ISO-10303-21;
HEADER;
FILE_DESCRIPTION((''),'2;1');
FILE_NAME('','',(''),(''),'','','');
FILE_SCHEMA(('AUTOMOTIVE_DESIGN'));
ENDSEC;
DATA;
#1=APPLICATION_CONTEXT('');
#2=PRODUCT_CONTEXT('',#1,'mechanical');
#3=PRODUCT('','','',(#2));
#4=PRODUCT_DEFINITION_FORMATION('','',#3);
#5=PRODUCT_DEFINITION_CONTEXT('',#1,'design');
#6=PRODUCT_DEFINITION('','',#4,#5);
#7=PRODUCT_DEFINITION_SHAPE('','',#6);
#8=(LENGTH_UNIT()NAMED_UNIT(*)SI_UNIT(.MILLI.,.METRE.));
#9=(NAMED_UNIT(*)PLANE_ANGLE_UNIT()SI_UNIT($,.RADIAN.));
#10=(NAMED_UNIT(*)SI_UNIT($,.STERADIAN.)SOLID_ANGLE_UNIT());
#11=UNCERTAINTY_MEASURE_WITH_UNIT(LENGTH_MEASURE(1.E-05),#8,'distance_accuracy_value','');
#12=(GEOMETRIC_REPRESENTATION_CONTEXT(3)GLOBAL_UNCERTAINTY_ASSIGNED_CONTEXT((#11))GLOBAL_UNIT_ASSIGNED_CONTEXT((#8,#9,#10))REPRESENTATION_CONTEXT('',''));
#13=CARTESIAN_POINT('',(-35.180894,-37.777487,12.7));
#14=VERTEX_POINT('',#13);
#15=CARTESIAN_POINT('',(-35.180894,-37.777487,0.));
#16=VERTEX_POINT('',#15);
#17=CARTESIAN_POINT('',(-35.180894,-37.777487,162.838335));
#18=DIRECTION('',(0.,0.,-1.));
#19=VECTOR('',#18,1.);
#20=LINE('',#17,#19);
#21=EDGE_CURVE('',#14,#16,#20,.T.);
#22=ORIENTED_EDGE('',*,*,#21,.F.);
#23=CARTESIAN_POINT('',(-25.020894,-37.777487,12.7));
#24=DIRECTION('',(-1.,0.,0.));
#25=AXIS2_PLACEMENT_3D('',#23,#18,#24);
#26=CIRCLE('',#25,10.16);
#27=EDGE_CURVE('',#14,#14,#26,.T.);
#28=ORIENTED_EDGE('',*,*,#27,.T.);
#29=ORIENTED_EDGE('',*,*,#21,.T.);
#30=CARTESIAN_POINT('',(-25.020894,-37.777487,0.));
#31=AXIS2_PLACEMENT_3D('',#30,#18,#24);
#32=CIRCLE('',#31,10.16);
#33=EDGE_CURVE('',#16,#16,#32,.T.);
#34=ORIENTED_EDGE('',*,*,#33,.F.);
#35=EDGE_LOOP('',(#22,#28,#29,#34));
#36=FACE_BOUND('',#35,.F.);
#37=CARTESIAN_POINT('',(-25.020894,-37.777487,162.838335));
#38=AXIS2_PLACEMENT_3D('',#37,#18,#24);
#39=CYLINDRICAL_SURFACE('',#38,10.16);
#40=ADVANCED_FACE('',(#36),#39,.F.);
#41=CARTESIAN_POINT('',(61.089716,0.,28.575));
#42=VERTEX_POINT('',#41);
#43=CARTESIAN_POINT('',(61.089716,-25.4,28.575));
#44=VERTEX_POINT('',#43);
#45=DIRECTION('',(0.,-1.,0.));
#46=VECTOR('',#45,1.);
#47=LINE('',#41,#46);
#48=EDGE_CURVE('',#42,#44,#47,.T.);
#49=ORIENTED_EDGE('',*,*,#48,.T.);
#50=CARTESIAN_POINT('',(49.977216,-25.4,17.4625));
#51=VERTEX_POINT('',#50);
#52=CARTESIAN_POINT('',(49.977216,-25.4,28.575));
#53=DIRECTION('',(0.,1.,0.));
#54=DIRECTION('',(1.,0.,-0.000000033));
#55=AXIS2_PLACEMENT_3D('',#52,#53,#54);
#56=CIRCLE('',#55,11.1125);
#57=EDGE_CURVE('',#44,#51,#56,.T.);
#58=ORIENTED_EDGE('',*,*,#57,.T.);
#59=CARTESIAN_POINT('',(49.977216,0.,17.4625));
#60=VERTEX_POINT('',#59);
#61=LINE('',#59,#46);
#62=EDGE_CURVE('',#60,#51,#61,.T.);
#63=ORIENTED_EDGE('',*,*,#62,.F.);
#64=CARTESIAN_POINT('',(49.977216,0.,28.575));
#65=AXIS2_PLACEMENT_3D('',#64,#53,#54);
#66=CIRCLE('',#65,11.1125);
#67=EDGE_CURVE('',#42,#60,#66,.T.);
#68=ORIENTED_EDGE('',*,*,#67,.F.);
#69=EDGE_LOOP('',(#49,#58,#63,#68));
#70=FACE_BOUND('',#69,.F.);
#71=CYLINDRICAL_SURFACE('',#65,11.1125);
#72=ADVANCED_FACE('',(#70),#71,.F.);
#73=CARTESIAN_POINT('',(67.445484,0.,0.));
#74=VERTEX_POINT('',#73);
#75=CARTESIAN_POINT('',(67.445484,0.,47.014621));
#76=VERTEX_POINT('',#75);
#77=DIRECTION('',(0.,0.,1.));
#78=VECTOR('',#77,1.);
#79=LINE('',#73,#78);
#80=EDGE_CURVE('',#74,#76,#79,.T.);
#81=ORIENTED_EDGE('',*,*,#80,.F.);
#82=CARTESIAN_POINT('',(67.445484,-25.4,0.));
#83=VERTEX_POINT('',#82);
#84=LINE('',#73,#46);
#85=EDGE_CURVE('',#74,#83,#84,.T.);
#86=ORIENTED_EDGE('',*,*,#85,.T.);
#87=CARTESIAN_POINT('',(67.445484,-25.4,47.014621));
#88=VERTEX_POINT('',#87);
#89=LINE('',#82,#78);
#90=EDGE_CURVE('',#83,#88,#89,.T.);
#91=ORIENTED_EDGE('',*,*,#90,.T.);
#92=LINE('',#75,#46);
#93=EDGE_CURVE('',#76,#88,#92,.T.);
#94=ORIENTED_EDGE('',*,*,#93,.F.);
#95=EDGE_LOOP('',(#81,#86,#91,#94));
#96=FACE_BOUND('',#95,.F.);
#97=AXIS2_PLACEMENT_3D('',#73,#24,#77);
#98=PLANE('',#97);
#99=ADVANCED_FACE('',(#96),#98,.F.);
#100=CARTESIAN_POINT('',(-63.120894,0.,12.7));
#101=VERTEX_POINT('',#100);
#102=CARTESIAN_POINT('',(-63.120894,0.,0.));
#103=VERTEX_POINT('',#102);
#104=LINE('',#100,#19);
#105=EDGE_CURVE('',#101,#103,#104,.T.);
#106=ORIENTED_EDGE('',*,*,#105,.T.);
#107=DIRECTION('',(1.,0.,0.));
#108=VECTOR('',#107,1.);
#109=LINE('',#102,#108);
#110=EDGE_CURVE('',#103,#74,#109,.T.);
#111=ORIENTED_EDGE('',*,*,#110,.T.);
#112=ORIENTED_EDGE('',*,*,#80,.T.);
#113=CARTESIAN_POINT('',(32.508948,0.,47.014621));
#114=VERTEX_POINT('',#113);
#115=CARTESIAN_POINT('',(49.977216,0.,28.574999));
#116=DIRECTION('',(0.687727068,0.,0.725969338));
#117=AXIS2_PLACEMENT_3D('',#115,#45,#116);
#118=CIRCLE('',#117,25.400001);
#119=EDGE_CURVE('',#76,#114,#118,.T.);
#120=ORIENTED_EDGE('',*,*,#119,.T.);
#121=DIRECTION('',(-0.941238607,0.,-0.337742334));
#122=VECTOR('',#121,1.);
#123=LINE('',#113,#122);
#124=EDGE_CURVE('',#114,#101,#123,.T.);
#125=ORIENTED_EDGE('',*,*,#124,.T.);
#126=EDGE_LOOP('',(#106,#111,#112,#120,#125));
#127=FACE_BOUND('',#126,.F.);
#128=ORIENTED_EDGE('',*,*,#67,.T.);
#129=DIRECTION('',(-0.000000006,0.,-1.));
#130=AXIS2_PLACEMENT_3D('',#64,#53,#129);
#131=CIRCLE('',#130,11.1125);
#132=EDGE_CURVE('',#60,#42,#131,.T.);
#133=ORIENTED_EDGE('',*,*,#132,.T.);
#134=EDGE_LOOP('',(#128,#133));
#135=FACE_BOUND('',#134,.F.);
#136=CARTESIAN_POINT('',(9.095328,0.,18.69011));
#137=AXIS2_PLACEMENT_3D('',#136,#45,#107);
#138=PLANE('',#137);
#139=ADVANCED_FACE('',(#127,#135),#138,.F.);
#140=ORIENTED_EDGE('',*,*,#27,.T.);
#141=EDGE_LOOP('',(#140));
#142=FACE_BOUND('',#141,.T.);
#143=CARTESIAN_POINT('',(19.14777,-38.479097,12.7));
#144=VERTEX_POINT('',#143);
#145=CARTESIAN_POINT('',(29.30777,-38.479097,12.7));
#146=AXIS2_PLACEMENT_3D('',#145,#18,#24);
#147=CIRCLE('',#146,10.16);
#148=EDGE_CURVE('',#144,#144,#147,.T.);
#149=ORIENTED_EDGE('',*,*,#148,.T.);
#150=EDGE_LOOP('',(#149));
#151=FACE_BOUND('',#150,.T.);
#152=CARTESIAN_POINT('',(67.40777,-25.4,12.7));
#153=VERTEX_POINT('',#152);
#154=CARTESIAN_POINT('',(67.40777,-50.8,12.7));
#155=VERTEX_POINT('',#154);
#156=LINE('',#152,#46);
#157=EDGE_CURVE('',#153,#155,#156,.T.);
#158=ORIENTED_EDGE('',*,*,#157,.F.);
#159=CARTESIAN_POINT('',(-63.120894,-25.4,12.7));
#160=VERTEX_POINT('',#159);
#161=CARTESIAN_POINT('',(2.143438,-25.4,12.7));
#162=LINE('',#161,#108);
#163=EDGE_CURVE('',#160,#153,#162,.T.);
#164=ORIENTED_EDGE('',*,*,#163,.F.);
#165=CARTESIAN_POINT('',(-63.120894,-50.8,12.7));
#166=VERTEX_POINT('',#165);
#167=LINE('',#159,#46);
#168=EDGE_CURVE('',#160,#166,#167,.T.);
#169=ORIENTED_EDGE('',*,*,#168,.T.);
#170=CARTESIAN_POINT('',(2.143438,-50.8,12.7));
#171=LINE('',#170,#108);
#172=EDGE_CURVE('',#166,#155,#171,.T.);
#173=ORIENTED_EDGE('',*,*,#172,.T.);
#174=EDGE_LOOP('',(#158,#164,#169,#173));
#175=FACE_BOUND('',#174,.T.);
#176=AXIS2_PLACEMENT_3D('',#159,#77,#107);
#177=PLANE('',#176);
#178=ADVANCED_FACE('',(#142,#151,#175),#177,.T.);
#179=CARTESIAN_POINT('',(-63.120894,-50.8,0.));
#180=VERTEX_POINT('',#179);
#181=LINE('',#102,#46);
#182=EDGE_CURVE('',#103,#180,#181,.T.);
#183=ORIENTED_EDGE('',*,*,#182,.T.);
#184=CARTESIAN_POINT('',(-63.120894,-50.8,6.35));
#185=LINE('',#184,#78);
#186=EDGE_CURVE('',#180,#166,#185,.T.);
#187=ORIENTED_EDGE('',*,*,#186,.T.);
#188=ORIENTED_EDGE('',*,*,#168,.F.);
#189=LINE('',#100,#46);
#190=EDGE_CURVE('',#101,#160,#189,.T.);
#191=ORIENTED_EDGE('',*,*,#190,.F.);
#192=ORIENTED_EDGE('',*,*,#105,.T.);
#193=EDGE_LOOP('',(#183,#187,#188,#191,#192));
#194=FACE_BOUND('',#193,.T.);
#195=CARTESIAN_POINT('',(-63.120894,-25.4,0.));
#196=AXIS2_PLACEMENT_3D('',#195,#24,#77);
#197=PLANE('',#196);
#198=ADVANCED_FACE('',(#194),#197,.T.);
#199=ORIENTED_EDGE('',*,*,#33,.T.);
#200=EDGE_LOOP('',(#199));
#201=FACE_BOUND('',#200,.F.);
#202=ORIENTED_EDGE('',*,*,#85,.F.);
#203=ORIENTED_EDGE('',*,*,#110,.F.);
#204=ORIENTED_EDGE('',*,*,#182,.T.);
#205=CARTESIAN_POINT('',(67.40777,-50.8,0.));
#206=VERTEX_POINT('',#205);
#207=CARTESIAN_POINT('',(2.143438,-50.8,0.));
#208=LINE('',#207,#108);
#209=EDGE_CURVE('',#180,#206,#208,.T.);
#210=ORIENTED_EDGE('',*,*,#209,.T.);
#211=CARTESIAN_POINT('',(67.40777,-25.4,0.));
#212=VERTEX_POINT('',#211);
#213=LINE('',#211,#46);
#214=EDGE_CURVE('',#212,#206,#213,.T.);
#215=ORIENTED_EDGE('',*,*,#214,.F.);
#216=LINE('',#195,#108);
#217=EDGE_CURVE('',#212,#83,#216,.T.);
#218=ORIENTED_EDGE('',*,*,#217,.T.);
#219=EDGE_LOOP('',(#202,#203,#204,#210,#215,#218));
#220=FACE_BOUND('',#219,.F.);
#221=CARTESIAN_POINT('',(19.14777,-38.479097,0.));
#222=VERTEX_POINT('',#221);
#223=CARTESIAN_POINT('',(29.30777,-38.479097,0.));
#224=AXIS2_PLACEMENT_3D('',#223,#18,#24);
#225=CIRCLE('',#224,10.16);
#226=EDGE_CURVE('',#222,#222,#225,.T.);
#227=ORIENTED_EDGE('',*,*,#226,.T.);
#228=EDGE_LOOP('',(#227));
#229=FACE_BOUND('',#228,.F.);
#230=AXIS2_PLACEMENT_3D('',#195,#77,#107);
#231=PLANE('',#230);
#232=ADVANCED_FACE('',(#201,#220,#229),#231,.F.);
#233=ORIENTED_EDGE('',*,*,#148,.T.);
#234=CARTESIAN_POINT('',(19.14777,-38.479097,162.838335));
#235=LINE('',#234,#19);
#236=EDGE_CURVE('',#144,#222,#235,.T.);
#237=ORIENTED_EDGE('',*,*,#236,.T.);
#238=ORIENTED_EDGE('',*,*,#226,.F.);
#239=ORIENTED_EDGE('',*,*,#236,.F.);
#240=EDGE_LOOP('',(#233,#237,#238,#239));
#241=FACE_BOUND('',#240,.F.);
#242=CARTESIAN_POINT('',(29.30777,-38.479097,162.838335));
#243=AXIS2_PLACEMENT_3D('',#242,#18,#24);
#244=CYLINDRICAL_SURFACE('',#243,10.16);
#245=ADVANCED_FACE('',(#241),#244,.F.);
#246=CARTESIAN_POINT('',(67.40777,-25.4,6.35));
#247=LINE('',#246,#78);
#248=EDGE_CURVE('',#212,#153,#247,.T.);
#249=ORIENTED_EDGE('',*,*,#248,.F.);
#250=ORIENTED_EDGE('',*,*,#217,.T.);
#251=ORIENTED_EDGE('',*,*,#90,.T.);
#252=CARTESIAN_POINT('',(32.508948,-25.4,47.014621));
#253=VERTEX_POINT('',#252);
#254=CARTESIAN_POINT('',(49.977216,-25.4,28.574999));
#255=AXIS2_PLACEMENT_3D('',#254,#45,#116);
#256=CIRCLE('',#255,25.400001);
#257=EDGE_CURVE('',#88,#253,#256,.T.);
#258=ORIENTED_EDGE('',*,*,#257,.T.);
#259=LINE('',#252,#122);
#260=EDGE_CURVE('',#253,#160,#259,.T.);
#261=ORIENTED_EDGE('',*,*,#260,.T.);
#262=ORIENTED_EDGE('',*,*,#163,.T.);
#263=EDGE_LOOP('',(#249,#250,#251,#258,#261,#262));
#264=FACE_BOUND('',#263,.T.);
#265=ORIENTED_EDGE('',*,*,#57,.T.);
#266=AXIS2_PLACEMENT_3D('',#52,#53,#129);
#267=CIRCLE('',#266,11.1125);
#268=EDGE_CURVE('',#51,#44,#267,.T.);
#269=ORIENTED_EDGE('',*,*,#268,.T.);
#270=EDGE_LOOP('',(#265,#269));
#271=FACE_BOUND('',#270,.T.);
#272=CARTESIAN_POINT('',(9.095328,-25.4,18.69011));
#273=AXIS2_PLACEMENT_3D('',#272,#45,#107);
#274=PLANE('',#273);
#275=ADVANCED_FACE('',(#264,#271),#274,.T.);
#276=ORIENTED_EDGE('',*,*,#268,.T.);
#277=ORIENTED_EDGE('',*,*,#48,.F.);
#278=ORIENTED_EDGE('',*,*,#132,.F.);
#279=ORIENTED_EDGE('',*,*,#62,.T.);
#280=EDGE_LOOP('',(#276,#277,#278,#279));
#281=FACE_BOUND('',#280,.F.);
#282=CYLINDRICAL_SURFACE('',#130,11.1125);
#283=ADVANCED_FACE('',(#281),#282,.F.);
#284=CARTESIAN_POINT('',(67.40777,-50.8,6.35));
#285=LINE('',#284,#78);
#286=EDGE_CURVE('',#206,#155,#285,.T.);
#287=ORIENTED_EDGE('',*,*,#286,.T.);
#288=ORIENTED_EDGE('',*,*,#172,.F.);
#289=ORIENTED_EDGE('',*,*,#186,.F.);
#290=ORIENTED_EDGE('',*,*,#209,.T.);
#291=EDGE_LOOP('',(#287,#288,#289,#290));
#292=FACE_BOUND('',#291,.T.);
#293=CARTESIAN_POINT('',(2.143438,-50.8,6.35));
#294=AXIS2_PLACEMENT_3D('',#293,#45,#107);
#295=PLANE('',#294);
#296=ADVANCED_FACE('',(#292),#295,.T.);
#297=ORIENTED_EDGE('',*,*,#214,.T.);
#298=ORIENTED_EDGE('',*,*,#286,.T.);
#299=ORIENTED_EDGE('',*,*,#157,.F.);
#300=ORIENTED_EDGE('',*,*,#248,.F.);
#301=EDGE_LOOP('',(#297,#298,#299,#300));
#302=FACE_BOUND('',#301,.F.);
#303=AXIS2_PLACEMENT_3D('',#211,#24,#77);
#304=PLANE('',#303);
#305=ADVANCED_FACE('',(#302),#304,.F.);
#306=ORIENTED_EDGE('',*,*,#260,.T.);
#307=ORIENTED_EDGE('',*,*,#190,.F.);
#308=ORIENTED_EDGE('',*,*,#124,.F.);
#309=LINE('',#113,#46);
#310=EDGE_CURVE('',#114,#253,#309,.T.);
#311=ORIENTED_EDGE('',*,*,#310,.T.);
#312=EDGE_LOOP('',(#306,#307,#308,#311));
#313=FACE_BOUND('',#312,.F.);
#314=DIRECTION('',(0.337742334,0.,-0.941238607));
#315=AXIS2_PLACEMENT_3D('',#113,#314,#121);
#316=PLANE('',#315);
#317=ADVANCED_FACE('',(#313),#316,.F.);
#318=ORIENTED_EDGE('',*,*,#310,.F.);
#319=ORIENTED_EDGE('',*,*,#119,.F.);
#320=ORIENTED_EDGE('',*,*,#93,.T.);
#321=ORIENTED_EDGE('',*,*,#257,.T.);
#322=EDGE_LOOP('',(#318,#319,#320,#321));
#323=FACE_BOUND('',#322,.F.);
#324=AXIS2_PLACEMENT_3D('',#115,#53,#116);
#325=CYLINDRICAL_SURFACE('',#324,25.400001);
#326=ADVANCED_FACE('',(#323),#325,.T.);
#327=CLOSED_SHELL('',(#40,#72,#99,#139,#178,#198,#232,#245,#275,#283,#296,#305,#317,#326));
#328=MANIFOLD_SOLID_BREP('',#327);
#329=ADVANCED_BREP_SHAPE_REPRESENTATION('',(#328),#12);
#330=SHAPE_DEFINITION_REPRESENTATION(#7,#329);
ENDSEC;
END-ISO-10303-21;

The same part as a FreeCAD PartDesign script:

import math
import FreeCAD as App
import Part
import Sketcher
from FreeCAD import Vector
Q = App.Units.Quantity

doc = App.newDocument("Part")
body = doc.addObject("PartDesign::Body", "Body")

# Sketch on XZ plane
sketch1 = body.newObject("Sketcher::SketchObject", "Sketch")
sketch1.AttachmentSupport = (doc.getObject("XZ_Plane"), [""])
sketch1.MapMode = "FlatFace"
sketch1.addGeometry(Part.LineSegment(Vector(-63, 13, 0), Vector(-63, 0, 0)), False)
sketch1.addGeometry(Part.LineSegment(Vector(-63, 0, 0), Vector(67, 0, 0)), False)
sketch1.addGeometry(Part.LineSegment(Vector(67, 0, 0), Vector(67, 47, 0)), False)
sketch1.addGeometry(Part.ArcOfCircle(Part.Circle(Vector(50, 29, 0), Vector(0, 0, 1), 25), math.radians(47), math.radians(133)), False)
sketch1.addGeometry(Part.LineSegment(Vector(33, 47, 0), Vector(-63, 13, 0)), False)
sketch1.addGeometry(Part.ArcOfCircle(Part.Circle(Vector(50, 29, 0), Vector(0, 0, 1), 11), math.radians(0), math.radians(270)), False)
sketch1.addGeometry(Part.ArcOfCircle(Part.Circle(Vector(50, 29, 0), Vector(0, 0, 1), 11), math.radians(-90), math.radians(0)), False)
sketch1.addConstraint(Sketcher.Constraint("Coincident", 0, 2, 1, 1))
sketch1.addConstraint(Sketcher.Constraint("Coincident", 1, 2, 2, 1))
sketch1.addConstraint(Sketcher.Constraint("Coincident", 2, 2, 3, 1))
sketch1.addConstraint(Sketcher.Constraint("Coincident", 3, 2, 4, 1))
sketch1.addConstraint(Sketcher.Constraint("Coincident", 4, 2, 0, 1))
sketch1.addConstraint(Sketcher.Constraint("Tangent", 5, 1, 6, 2))
sketch1.addConstraint(Sketcher.Constraint("Coincident", 6, 1, 5, 2))
sketch1.addConstraint(Sketcher.Constraint("Vertical", 0))
sketch1.addConstraint(Sketcher.Constraint("Horizontal", 1))
sketch1.addConstraint(Sketcher.Constraint("Vertical", 2))
sketch1.addConstraint(Sketcher.Constraint("Coincident", 5, 3, 3, 3))
sketch1.addConstraint(Sketcher.Constraint("PointOnObject", 0, 2, -1))
sketch1.addConstraint(Sketcher.Constraint("Horizontal", 2, 2, 3, 2))
sketch1.addConstraint(Sketcher.Constraint("Horizontal", 6, 3, 5, 1))
sketch1.addConstraint(Sketcher.Constraint("Vertical", 5, 3, 6, 1))
sketch1.addConstraint(Sketcher.Constraint("Radius", 3, Q("1 in")))
sketch1.addConstraint(Sketcher.Constraint("Distance", 4, Q("4 in")))
sketch1.addConstraint(Sketcher.Constraint("DistanceY", 0, 2, 0, 1, Q("0.5 in")))
sketch1.addConstraint(Sketcher.Constraint("Radius", 5, Q("0.4375 in")))
sketch1.addConstraint(Sketcher.Constraint("DistanceY", -1, 1, 3, 3, Q("1.125 in")))
sketch1.addConstraint(Sketcher.Constraint("DistanceY", 2, 1, 2, 2, 47.014621))
sketch1.addConstraint(Sketcher.Constraint("DistanceX", -1, 1, 3, 3, 49.977216))
pad1 = body.newObject("PartDesign::Pad", "Pad")
pad1.Profile = sketch1
pad1.Length = Q("1 in")

# Sketch on XZ plane
sketch2 = body.newObject("Sketcher::SketchObject", "Sketch001")
sketch2.AttachmentSupport = (doc.getObject("XZ_Plane"), [""])
sketch2.MapMode = "FlatFace"
sketch2.AttachmentOffset = App.Placement(Vector(0, 0, 1 * 25.4), App.Rotation())
sketch2.addGeometry(Part.LineSegment(Vector(-63, 13, 0), Vector(-63, 0, 0)), False)
sketch2.addGeometry(Part.LineSegment(Vector(-63, 0, 0), Vector(67, 0, 0)), False)
sketch2.addGeometry(Part.LineSegment(Vector(67, 0, 0), Vector(67, 13, 0)), False)
sketch2.addGeometry(Part.LineSegment(Vector(67, 13, 0), Vector(-63, 13, 0)), False)
sketch2.addConstraint(Sketcher.Constraint("Coincident", 0, 2, 1, 1))
sketch2.addConstraint(Sketcher.Constraint("Coincident", 1, 2, 2, 1))
sketch2.addConstraint(Sketcher.Constraint("Coincident", 2, 2, 3, 1))
sketch2.addConstraint(Sketcher.Constraint("Coincident", 3, 2, 0, 1))
sketch2.addConstraint(Sketcher.Constraint("Vertical", 0))
sketch2.addConstraint(Sketcher.Constraint("Horizontal", 1))
sketch2.addConstraint(Sketcher.Constraint("Vertical", 2))
sketch2.addConstraint(Sketcher.Constraint("Horizontal", 3))
sketch2.addConstraint(Sketcher.Constraint("PointOnObject", 0, 2, -1))
sketch2.addConstraint(Sketcher.Constraint("DistanceY", 0, 2, 0, 1, Q("0.5 in")))
sketch2.addConstraint(Sketcher.Constraint("DistanceX", 1, 1, 1, 2, 130.528664))
sketch2.addConstraint(Sketcher.Constraint("DistanceX", -1, 1, 1, 2, 67.40777))
pad2 = body.newObject("PartDesign::Pad", "Pad001")
pad2.Profile = sketch2
pad2.Length = Q("1 in")

# Sketch on XY plane
sketch3 = body.newObject("Sketcher::SketchObject", "Sketch002")
sketch3.AttachmentSupport = (doc.getObject("XY_Plane"), [""])
sketch3.MapMode = "FlatFace"
sketch3.AttachmentOffset = App.Placement(Vector(0, 0, 0.5 * 25.4), App.Rotation())
sketch3.addGeometry(Part.Circle(Vector(-25, -38, 0), Vector(0, 0, 1), 10), False)
sketch3.addGeometry(Part.Circle(Vector(29, -38, 0), Vector(0, 0, 1), 10), False)
sketch3.addConstraint(Sketcher.Constraint("Equal", 0, 1))
sketch3.addConstraint(Sketcher.Constraint("Diameter", 0, Q("0.8 in")))
sketch3.addConstraint(Sketcher.Constraint("DistanceX", -1, 1, 1, 3, 29.30777))
sketch3.addConstraint(Sketcher.Constraint("DistanceY", 1, 3, 0, 3, 0.70161))
sketch3.addConstraint(Sketcher.Constraint("DistanceX", 0, 3, -1, 1, 25.020894))
sketch3.addConstraint(Sketcher.Constraint("DistanceY", 0, 3, -1, 1, 37.777487))
doc.recompute()
hole = body.newObject("PartDesign::Hole", "Hole")
hole.Profile = sketch3
hole.ThreadType = "None"
hole.Diameter = Q("0.8 in")
hole.DepthType = "ThroughAll"

doc.recompute()
